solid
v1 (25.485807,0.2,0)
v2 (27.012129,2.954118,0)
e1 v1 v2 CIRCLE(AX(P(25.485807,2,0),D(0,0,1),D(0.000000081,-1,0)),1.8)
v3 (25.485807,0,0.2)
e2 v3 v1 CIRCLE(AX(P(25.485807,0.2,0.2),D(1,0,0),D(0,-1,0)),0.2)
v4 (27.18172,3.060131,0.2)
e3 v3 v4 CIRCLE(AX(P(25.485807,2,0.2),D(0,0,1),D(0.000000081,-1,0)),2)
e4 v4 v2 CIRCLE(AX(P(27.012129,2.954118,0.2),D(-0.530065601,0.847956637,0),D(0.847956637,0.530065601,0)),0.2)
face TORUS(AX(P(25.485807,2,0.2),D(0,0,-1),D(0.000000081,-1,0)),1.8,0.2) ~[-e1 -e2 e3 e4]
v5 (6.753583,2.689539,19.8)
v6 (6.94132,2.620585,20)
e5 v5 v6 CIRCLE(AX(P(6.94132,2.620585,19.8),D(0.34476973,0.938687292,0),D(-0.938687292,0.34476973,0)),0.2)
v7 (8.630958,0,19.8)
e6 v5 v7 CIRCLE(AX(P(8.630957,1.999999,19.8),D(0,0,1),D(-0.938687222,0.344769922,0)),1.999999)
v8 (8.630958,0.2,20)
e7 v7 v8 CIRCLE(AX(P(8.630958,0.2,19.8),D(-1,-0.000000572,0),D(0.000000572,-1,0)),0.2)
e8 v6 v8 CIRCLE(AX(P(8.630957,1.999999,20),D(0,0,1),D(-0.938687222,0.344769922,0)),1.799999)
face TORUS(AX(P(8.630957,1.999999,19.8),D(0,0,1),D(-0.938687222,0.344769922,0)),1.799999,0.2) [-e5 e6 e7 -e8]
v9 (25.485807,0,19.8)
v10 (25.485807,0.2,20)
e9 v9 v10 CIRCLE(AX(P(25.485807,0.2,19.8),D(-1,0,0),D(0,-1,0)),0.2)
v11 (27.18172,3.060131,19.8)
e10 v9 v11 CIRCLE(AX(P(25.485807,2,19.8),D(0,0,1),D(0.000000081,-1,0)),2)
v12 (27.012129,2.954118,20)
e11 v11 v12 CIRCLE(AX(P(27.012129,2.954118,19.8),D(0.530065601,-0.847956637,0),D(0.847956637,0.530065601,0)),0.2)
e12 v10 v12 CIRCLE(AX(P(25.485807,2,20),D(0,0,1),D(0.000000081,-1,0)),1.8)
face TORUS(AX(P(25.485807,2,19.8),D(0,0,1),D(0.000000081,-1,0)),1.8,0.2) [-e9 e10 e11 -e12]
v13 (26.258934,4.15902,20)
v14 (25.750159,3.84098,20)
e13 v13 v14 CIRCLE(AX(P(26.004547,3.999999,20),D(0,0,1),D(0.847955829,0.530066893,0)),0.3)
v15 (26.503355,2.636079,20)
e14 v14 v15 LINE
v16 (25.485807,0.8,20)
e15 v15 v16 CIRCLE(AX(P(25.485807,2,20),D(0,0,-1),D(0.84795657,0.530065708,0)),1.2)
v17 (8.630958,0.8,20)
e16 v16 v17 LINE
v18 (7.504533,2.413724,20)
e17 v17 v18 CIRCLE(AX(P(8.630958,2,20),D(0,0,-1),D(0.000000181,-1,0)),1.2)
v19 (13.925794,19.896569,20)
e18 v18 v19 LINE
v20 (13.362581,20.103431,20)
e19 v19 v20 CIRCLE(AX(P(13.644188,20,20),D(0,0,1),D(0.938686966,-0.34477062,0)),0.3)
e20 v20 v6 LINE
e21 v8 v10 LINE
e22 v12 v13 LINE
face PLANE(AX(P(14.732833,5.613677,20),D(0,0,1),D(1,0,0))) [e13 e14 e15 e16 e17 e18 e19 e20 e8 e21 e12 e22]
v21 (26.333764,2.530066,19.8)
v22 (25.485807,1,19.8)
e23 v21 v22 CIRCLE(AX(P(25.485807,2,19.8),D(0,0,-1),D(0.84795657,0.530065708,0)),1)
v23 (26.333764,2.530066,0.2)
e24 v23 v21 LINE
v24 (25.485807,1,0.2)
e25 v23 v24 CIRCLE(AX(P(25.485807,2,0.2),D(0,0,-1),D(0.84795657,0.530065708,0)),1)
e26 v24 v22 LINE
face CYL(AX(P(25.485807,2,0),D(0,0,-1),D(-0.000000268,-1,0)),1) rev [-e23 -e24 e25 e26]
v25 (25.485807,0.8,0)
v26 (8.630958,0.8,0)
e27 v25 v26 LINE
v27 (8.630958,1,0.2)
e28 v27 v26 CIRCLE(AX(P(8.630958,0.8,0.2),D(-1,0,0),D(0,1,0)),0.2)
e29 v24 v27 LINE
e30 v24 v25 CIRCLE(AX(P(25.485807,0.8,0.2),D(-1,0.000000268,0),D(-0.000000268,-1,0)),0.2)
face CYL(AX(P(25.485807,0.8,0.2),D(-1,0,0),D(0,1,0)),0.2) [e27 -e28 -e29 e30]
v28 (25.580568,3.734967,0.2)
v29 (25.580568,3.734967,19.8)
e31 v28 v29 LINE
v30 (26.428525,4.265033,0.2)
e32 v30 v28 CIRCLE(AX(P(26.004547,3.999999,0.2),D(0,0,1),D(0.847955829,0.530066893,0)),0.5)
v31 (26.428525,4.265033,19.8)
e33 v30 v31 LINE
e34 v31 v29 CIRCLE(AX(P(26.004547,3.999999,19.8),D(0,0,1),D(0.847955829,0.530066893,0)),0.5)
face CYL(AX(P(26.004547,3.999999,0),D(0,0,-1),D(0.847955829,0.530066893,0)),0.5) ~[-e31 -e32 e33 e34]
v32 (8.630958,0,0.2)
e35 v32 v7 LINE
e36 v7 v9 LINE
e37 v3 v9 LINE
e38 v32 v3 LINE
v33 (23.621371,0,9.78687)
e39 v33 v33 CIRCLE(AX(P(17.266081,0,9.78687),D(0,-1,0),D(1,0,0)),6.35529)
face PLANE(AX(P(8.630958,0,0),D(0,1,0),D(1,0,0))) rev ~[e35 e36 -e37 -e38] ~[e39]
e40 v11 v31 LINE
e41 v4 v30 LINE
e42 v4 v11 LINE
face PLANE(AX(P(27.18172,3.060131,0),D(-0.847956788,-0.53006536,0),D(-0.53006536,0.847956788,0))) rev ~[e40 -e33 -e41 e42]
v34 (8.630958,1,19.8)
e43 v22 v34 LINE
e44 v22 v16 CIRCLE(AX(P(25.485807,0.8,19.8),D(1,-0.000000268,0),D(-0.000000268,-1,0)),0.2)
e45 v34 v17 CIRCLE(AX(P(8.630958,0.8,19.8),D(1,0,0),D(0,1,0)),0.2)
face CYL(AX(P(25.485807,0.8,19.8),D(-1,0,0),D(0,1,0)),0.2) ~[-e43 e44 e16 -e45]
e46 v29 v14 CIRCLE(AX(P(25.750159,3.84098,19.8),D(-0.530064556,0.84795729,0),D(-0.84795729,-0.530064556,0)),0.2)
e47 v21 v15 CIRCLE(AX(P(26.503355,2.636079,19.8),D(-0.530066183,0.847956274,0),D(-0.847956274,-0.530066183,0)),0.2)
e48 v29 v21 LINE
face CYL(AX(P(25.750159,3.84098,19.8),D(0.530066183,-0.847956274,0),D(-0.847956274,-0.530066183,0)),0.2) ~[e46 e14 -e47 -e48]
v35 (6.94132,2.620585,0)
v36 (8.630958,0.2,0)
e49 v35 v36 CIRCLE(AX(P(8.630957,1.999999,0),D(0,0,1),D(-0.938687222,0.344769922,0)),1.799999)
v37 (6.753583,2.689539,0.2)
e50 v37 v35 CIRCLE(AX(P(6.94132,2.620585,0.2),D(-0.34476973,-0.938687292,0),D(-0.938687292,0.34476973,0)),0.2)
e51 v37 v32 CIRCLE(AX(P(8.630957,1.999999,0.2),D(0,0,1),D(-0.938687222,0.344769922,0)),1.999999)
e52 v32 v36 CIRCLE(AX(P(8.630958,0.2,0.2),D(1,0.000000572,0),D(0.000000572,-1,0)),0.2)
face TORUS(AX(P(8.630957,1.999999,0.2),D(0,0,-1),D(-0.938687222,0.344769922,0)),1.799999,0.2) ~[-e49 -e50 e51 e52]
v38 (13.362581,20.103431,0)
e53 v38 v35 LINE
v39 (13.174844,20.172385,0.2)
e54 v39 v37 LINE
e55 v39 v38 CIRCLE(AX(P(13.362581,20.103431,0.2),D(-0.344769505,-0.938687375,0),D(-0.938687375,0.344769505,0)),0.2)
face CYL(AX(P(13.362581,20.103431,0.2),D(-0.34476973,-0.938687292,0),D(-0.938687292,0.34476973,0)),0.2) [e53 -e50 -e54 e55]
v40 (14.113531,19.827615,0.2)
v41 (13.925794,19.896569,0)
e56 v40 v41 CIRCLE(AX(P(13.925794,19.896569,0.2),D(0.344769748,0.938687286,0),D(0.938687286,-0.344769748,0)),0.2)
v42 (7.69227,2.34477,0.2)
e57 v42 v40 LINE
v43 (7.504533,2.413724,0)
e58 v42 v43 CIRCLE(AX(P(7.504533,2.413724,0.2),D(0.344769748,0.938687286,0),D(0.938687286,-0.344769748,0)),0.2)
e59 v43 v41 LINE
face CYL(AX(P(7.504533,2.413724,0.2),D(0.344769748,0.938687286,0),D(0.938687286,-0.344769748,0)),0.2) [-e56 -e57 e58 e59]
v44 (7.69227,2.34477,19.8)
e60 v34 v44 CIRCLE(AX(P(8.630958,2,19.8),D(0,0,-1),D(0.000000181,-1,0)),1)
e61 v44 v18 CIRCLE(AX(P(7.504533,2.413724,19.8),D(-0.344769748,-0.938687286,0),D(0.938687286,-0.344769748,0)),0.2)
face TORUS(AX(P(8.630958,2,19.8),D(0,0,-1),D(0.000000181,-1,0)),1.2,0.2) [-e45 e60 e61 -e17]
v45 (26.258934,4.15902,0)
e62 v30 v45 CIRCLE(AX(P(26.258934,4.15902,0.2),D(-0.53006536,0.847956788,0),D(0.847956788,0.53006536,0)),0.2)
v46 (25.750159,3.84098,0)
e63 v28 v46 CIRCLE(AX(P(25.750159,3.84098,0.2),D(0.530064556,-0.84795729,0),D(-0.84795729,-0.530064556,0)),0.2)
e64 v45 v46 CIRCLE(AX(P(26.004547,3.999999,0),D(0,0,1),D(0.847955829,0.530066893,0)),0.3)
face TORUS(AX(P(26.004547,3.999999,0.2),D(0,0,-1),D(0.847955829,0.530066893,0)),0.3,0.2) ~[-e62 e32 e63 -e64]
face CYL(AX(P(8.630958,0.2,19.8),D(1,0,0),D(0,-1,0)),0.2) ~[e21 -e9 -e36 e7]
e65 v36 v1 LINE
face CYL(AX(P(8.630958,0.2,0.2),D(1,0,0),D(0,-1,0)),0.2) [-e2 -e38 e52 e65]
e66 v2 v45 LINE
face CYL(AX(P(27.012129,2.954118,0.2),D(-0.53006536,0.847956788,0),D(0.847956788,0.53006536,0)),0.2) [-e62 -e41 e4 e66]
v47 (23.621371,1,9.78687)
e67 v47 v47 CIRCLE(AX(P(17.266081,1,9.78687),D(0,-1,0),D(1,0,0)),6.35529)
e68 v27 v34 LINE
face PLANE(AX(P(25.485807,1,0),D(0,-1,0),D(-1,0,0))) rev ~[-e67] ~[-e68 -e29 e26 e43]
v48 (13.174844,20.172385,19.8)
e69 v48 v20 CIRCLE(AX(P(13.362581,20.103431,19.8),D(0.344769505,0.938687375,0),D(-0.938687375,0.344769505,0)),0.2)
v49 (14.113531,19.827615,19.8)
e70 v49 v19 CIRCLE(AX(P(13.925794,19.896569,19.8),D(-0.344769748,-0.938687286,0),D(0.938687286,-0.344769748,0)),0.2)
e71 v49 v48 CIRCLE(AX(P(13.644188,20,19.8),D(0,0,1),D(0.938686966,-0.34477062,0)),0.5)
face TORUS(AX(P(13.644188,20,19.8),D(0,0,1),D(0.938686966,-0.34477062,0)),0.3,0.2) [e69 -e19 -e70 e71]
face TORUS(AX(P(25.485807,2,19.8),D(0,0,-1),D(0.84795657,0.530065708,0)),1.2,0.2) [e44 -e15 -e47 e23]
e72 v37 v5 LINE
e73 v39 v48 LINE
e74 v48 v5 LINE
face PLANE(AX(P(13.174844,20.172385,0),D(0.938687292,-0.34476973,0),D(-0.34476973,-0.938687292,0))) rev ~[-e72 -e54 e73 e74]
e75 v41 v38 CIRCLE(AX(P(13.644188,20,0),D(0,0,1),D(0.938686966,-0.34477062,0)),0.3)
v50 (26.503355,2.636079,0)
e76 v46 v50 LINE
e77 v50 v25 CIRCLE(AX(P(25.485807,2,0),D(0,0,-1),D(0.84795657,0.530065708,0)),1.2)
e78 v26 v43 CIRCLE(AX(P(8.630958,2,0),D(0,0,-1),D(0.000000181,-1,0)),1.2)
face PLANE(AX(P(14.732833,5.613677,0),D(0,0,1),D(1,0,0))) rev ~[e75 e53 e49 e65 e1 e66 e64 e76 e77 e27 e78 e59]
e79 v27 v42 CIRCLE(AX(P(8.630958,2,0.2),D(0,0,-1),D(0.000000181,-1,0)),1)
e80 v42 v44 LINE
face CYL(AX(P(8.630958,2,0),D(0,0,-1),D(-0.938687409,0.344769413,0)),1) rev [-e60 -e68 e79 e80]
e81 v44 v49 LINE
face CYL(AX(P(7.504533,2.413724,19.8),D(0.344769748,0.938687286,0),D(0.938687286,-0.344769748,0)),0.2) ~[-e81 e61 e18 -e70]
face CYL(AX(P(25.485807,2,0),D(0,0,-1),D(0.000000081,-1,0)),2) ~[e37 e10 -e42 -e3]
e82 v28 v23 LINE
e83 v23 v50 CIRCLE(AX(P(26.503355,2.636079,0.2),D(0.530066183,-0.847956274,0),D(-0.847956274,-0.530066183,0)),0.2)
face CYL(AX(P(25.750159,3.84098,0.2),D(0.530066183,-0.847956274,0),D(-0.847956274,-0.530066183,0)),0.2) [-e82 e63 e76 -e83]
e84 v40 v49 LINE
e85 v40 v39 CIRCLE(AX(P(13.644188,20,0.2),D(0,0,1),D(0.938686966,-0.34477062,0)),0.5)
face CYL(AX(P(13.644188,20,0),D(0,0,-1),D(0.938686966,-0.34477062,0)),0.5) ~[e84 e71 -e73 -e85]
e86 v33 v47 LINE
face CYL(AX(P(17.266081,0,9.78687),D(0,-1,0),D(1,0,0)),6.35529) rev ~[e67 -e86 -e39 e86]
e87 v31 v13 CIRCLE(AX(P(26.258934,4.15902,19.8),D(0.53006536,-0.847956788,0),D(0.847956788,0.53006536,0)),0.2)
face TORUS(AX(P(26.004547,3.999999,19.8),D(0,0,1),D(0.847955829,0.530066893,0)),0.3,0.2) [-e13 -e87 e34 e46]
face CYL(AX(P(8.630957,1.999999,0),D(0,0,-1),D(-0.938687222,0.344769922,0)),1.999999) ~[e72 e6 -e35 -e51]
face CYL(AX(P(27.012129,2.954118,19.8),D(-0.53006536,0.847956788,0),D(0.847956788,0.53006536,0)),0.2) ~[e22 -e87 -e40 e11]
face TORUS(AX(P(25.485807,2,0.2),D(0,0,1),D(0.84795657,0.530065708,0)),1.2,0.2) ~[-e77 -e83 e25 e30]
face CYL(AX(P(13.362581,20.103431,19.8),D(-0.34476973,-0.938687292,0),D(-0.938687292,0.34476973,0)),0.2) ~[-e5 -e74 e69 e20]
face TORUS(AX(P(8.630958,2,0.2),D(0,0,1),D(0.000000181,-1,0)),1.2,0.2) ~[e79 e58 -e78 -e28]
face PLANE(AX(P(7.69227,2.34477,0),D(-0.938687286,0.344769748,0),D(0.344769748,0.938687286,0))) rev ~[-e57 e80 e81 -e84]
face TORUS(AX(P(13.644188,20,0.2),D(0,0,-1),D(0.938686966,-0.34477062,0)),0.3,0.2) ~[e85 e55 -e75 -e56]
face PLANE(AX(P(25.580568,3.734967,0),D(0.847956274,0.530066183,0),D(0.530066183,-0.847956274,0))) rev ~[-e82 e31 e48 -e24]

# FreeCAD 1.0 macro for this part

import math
import FreeCAD as App
import Part
import Sketcher

V = App.Vector


def edges_at(feature, points):
    """Names of the edges that pass closest to the given points."""
    edges = feature.Shape.Edges
    near = lambda p: min(range(len(edges)), key=lambda i: edges[i].distToShape(Part.Vertex(*p))[0])
    return sorted({f"Edge{near(p) + 1}" for p in points})

doc = App.newDocument("Part")
body = doc.addObject("PartDesign::Body", "Body")

# Sketch on XY plane
sketch1 = doc.addObject("Sketcher::SketchObject", "Sketch")
body.addObject(sketch1)
sketch1.AttachmentSupport = (doc.XY_Plane, [""])
sketch1.MapMode = "FlatFace"
sketch1.addGeometry([
    Part.LineSegment(V(13.174844, 20.172385, 0), V(6.753583, 2.689539, 0)),  # 0
    Part.ArcOfCircle(Part.Circle(V(8.630957, 1.999999, 0), V(0, 0, 1), 1.999999), math.radians(159.832248), math.radians(270.000033)),  # 1
    Part.LineSegment(V(8.630958, 0, 0), V(25.485807, 0, 0)),  # 2
    Part.ArcOfCircle(Part.Circle(V(25.485807, 2, 0), V(0, 0, 1), 2), math.radians(-89.999995), math.radians(32.009887)),  # 3
    Part.LineSegment(V(27.18172, 3.060131, 0), V(26.428525, 4.265033, 0)),  # 4
    Part.ArcOfCircle(Part.Circle(V(26.004547, 3.999999, 0), V(0, 0, 1), 0.5), math.radians(32.009975), math.radians(212.009817)),  # 5
    Part.LineSegment(V(25.580568, 3.734967, 0), V(26.333764, 2.530066, 0)),  # 6
    Part.ArcOfCircle(Part.Circle(V(25.485807, 2, 0), V(0, 0, 1), 1), math.radians(-90.000015), math.radians(32.009895)),  # 7
    Part.LineSegment(V(25.485807, 1, 0), V(8.630958, 1, 0)),  # 8
    Part.ArcOfCircle(Part.Circle(V(8.630958, 2, 0), V(0, 0, 1), 1), math.radians(159.83228), math.radians(270.00001)),  # 9
    Part.LineSegment(V(7.69227, 2.34477, 0), V(14.113531, 19.827615, 0)),  # 10
    Part.ArcOfCircle(Part.Circle(V(13.644188, 20, 0), V(0, 0, 1), 0.5), math.radians(-20.167794), math.radians(159.832274)),  # 11
], False)
sketch1.addConstraint([
    Sketcher.Constraint("Tangent", 0, 2, 1, 1),
    Sketcher.Constraint("Tangent", 1, 2, 2, 1),
    Sketcher.Constraint("Tangent", 2, 2, 3, 1),
    Sketcher.Constraint("Tangent", 3, 2, 4, 1),
    Sketcher.Constraint("Tangent", 4, 2, 5, 1),
    Sketcher.Constraint("Tangent", 5, 2, 6, 1),
    Sketcher.Constraint("Tangent", 6, 2, 7, 2),
    Sketcher.Constraint("Tangent", 7, 1, 8, 1),
    Sketcher.Constraint("Tangent", 8, 2, 9, 2),
    Sketcher.Constraint("Tangent", 9, 1, 10, 1),
    Sketcher.Constraint("Tangent", 10, 2, 11, 1),
    Sketcher.Constraint("Tangent", 11, 2, 0, 1),
    Sketcher.Constraint("Horizontal", 2),
    Sketcher.Constraint("Horizontal", 8),
    Sketcher.Constraint("Coincident", 7, 3, 3, 3),
    Sketcher.Constraint("Coincident", 9, 3, 1, 3),
    Sketcher.Constraint("Equal", 1, 3),
    Sketcher.Constraint("Equal", 5, 11),
    Sketcher.Constraint("PointOnObject", 1, 2, -1),
    Sketcher.Constraint("Parallel", 4, 6),
    Sketcher.Constraint("Radius", 1, 1.999999),
    Sketcher.Constraint("Radius", 7, 1.0),
    Sketcher.Constraint("DistanceY", -1, 1, 5, 3, 3.999999),
    Sketcher.Constraint("DistanceY", -1, 1, 11, 3, 20.0),
    Sketcher.Constraint("DistanceX", 2, 1, 2, 2, 16.854849),
    Sketcher.Constraint("DistanceY", 6, 2, 5, 2, 1.204901),
    Sketcher.Constraint("Distance", 0, 18.624782),
    Sketcher.Constraint("DistanceX", -1, 1, 3, 2, 27.18172),
])
pad1 = doc.addObject("PartDesign::Pad", "Pad")
body.addObject(pad1)
pad1.Profile = sketch1
pad1.Length = 20
doc.recompute()

fillet = doc.addObject("PartDesign::Fillet", "Fillet")
body.addObject(fillet)
fillet.Base = (pad1, edges_at(pad1, [
    (10.903, 11.086, 20),
    (13.817, 20.469, 20),
    (9.964, 11.431, 20),
    (6.991, 0.855, 20),
    (17.058, 0, 20),
    (27.235, 1.031, 20),
    (26.805, 3.663, 20),
    (25.74, 4.424, 20),
    (25.957, 3.133, 20),
    (26.36, 1.515, 20),
    (17.058, 1, 20),
    (7.811, 1.428, 20),
    (10.903, 11.086, 0),
    (13.817, 20.469, 0),
    (9.964, 11.431, 0),
    (6.991, 0.855, 0),
    (17.058, 0, 0),
    (27.235, 1.031, 0),
    (26.805, 3.663, 0),
    (25.74, 4.424, 0),
    (25.957, 3.133, 0),
    (26.36, 1.515, 0),
    (17.058, 1, 0),
    (7.811, 1.428, 0),
]))
fillet.Radius = 0.2

# Sketch on XZ plane
sketch2 = doc.addObject("Sketcher::SketchObject", "Sketch001")
body.addObject(sketch2)
sketch2.AttachmentSupport = (doc.XZ_Plane, [""])
sketch2.MapMode = "FlatFace"
sketch2.addGeometry(Part.Circle(V(17.266081, 9.78687, 0), V(0, 0, 1), 6.35529), False)
sketch2.addConstraint([
    Sketcher.Constraint("Diameter", 0, 12.71058),
    Sketcher.Constraint("DistanceX", -1, 1, 0, 3, 17.266081),
    Sketcher.Constraint("DistanceY", -1, 1, 0, 3, 9.78687),
])
pocket1 = doc.addObject("PartDesign::Pocket", "Pocket")
body.addObject(pocket1)
pocket1.Profile = sketch2
pocket1.Length = 5

doc.recompute()
